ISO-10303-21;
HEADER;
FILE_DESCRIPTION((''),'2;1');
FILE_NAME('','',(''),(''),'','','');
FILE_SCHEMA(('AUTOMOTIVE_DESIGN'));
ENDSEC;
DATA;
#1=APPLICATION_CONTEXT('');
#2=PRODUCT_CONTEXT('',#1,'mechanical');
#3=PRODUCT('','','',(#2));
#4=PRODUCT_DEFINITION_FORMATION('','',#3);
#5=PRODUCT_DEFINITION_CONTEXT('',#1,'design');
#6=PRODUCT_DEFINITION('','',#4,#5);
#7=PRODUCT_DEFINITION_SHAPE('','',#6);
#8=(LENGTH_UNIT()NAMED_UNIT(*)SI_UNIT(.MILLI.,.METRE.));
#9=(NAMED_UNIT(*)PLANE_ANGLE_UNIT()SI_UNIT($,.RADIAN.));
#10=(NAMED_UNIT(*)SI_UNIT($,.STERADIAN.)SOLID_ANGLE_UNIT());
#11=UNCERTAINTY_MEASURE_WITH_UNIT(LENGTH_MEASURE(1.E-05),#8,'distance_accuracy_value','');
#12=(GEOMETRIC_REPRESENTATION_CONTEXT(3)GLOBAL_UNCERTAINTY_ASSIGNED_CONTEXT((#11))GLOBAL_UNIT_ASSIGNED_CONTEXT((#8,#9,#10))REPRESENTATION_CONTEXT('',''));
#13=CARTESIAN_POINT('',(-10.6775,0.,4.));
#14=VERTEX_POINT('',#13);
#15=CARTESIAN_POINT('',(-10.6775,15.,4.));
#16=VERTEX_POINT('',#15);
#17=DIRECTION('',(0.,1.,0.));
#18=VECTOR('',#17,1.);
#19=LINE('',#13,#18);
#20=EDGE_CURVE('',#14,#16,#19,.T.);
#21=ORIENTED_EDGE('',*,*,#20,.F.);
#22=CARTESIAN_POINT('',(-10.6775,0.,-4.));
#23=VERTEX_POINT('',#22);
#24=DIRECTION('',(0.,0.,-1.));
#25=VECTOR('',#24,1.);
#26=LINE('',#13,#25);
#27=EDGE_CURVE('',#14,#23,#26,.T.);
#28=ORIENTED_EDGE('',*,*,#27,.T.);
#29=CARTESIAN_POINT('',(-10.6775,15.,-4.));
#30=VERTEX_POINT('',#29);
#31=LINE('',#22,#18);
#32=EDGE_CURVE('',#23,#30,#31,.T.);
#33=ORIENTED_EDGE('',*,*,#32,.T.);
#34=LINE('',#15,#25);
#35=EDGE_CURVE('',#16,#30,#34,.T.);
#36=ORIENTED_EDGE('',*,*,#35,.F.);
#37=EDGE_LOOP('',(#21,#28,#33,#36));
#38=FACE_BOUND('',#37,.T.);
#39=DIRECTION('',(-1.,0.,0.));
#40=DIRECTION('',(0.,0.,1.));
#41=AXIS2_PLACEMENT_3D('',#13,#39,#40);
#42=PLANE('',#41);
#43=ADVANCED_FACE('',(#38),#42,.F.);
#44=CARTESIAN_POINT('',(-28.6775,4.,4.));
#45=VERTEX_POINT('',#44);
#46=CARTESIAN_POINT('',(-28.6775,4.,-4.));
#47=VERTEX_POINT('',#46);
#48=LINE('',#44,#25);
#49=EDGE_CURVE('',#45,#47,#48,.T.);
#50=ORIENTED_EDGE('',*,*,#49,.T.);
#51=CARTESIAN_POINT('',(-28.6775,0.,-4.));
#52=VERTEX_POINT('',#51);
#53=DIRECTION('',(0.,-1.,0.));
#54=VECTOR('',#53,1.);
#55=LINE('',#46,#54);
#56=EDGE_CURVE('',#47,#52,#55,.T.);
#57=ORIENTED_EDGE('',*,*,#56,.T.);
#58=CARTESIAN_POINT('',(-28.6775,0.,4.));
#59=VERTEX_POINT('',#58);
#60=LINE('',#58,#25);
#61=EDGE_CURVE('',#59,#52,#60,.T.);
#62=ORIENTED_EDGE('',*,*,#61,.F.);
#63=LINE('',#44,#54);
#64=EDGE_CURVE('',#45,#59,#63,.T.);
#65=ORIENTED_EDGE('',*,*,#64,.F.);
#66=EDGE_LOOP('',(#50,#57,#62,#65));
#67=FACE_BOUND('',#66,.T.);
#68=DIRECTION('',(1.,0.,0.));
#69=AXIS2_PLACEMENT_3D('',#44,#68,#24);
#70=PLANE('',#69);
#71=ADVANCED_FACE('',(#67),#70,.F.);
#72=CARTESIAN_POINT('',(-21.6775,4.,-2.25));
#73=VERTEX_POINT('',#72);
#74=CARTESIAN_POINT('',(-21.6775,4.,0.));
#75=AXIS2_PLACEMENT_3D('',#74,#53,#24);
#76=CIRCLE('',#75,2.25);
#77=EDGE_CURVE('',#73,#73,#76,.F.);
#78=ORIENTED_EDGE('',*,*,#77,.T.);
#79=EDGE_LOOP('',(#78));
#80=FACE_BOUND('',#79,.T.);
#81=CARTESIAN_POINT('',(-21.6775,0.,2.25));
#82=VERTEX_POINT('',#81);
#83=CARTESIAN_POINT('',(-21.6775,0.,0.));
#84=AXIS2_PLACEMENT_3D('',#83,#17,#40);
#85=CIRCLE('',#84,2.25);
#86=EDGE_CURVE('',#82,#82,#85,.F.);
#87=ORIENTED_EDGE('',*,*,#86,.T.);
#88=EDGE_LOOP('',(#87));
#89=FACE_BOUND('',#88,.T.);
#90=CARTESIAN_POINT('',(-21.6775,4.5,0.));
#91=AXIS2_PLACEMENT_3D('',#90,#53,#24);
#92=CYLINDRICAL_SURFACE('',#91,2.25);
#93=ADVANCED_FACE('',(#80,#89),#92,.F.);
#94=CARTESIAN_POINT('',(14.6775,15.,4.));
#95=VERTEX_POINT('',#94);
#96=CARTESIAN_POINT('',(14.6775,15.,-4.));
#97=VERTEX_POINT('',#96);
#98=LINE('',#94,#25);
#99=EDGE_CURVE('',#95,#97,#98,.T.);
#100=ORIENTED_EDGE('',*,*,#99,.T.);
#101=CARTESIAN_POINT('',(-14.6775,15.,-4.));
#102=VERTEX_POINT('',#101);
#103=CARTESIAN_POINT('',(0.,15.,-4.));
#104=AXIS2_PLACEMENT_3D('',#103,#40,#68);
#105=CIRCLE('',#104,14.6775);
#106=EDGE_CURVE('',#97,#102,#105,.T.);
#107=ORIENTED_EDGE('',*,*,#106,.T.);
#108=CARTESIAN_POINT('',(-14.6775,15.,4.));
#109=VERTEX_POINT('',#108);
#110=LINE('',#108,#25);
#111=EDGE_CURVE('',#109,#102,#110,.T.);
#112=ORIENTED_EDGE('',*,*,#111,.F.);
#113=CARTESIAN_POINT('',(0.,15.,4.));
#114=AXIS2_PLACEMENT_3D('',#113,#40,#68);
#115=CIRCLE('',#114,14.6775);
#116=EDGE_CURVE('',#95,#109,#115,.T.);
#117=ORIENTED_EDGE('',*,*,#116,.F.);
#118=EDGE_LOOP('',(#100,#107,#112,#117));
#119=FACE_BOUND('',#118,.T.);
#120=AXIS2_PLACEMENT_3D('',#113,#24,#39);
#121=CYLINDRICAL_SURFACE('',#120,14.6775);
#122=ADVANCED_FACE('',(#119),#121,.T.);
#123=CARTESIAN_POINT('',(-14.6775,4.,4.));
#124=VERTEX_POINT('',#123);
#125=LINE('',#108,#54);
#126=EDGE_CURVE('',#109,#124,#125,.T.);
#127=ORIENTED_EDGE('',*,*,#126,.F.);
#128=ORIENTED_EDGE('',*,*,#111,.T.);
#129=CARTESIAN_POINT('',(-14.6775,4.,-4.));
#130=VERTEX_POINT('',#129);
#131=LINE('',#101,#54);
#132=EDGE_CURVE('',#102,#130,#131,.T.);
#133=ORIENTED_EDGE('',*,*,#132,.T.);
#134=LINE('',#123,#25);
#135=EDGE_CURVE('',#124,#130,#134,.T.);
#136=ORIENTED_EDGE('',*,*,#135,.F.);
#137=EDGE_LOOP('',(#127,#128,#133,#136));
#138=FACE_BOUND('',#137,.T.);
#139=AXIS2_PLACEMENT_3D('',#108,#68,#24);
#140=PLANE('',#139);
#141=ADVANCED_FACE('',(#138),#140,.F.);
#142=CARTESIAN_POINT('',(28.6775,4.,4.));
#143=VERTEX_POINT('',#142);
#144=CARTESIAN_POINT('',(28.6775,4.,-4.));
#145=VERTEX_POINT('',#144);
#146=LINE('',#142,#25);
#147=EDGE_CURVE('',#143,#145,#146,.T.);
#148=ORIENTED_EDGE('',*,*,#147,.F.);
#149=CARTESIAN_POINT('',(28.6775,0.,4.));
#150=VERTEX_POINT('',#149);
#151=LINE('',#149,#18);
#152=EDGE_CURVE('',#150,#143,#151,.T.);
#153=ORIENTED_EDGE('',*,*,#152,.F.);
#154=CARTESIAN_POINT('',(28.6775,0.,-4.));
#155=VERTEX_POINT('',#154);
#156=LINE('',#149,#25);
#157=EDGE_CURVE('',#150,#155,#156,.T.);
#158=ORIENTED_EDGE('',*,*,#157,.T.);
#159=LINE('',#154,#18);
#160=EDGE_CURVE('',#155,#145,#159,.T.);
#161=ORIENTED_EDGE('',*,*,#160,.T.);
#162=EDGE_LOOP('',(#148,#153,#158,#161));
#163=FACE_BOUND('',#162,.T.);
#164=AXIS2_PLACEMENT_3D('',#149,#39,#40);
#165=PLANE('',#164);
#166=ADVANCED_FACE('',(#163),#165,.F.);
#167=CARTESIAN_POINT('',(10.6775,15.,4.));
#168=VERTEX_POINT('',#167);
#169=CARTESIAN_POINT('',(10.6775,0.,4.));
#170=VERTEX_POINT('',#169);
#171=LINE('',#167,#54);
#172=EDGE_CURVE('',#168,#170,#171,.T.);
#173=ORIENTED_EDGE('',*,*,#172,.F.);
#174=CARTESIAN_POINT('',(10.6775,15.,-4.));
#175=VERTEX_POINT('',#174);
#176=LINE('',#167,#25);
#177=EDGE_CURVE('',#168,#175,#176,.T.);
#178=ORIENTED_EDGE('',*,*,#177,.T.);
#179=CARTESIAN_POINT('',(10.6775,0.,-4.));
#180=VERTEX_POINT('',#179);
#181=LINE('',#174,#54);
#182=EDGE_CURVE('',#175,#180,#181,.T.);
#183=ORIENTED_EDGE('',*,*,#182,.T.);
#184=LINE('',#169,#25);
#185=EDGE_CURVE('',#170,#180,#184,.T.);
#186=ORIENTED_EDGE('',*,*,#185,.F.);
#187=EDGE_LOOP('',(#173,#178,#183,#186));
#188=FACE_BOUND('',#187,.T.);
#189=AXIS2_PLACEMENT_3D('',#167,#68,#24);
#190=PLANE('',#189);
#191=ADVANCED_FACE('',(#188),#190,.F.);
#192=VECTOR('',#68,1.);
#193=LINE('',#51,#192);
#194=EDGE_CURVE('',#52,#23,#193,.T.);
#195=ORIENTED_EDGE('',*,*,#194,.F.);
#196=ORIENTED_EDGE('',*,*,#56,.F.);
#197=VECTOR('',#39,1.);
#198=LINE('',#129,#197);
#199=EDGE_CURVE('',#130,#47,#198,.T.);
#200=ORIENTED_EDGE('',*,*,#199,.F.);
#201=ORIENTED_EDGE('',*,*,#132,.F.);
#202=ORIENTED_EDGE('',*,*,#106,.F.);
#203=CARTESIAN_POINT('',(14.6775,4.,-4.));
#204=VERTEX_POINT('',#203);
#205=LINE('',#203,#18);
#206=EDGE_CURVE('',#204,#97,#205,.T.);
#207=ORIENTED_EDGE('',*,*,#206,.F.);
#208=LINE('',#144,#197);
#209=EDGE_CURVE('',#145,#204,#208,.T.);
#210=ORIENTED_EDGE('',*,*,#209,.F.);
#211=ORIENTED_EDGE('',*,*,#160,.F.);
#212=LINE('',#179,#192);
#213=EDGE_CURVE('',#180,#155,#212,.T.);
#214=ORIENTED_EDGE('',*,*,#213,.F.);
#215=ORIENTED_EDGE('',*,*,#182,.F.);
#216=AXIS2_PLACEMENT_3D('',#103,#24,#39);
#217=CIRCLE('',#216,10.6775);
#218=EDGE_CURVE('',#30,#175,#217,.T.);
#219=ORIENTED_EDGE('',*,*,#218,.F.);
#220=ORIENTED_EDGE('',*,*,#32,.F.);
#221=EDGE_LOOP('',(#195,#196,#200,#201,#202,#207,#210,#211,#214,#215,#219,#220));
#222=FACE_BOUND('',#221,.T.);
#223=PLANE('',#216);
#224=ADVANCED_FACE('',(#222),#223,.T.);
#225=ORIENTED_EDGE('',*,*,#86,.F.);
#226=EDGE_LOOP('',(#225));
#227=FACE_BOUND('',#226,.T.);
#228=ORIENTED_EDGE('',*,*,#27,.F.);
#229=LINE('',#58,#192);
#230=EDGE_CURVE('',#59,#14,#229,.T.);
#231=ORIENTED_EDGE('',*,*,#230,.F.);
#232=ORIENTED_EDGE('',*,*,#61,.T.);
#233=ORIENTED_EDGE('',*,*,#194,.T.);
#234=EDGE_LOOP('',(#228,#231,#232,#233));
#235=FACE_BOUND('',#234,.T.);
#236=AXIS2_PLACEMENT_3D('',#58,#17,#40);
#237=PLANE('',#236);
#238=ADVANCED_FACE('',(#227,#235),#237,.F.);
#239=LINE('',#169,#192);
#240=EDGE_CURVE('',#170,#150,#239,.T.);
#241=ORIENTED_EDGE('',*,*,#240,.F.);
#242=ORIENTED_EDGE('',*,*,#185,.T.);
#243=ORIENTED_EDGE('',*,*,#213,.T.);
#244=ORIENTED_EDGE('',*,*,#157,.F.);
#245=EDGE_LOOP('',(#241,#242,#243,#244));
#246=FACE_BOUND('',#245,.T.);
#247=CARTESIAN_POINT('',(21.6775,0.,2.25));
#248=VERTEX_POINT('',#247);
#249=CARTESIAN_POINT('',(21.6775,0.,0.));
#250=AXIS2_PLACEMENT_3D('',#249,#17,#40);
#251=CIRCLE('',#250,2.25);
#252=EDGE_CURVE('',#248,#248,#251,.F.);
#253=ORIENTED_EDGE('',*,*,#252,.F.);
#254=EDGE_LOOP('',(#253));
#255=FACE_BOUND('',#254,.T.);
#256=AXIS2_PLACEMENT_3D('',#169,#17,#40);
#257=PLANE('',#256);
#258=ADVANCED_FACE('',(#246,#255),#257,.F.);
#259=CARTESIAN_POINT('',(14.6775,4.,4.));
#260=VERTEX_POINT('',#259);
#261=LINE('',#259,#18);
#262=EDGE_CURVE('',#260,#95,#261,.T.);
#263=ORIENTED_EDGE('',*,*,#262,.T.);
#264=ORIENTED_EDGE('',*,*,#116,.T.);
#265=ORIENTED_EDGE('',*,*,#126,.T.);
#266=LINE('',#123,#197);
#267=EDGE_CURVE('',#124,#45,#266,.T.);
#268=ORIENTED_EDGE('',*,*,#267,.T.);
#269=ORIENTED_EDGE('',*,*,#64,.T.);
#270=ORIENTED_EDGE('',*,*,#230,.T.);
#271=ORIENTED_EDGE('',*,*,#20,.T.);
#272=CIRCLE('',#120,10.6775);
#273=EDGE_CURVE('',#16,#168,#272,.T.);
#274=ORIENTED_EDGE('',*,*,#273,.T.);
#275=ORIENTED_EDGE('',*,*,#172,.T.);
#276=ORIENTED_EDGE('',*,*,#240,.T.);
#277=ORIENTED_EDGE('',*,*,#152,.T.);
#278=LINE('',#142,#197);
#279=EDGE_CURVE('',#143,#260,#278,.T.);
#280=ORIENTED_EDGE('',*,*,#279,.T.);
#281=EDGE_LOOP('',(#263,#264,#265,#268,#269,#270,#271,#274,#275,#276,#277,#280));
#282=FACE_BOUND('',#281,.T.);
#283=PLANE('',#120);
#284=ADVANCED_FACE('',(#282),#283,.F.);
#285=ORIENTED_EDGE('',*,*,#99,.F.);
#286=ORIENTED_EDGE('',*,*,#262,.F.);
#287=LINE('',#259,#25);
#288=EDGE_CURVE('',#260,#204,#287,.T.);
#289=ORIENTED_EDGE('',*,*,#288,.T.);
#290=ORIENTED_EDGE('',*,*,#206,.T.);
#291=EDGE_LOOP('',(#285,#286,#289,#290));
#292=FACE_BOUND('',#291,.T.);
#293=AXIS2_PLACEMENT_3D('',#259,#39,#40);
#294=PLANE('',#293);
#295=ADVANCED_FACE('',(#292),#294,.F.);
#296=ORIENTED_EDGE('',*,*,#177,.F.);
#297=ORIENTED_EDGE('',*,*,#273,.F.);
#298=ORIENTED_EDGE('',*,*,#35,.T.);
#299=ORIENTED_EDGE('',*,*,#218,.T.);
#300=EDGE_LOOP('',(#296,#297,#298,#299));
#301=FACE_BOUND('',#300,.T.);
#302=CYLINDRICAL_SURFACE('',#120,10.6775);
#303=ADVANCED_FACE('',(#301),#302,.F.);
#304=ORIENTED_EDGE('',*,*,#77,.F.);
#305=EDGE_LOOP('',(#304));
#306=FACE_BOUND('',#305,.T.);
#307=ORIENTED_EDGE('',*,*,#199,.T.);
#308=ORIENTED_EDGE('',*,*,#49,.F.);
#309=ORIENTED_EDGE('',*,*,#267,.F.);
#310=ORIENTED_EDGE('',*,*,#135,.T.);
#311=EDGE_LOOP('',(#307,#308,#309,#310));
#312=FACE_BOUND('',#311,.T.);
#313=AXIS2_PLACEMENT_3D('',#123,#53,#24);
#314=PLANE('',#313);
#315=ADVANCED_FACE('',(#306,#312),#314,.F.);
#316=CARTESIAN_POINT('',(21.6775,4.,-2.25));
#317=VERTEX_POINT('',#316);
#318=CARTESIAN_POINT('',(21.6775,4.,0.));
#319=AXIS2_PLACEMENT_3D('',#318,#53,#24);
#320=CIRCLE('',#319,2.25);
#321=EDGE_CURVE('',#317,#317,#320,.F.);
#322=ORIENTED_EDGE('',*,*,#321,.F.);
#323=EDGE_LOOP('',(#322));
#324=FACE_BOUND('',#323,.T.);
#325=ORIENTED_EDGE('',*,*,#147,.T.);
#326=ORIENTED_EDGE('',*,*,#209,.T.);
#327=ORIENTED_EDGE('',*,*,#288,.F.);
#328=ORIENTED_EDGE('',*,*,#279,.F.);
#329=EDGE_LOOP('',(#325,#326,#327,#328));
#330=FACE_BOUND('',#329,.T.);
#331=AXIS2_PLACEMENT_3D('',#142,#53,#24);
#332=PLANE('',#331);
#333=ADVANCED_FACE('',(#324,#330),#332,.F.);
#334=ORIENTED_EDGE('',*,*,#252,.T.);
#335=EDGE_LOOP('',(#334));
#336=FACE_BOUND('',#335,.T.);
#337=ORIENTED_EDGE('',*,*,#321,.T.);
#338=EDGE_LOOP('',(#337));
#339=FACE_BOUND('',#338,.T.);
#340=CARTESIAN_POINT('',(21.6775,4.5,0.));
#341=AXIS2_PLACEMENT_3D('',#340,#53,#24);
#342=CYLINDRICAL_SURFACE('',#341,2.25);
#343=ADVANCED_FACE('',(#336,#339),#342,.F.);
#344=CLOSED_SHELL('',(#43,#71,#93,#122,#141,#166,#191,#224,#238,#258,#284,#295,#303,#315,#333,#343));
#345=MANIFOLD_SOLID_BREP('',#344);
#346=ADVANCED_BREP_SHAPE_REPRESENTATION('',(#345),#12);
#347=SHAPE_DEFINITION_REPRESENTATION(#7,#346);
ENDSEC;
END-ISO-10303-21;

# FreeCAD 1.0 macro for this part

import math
import FreeCAD as App
import Part
import Sketcher
Q = App.Units.Quantity

doc = App.newDocument("Part")
body = doc.addObject("PartDesign::Body", "Body")

# Sketch on XY plane
sketch1 = body.newObject("Sketcher::SketchObject", "Sketch")
sketch1.AttachmentSupport = (doc.getObject("XY_Plane"), [""])
sketch1.MapMode = "FlatFace"
sketch1.addGeometry([
    Part.LineSegment(App.Vector(-28.7, 0, 0), App.Vector(-10.7, 0, 0)),  # 0
    Part.LineSegment(App.Vector(-10.7, 0, 0), App.Vector(-10.7, 15, 0)),  # 1
    Part.ArcOfCircle(Part.Circle(App.Vector(0, 15, 0), App.Vector(0, 0, 1), 10.7), math.radians(0), math.radians(180)),  # 2
    Part.LineSegment(App.Vector(10.7, 15, 0), App.Vector(10.7, 0, 0)),  # 3
    Part.LineSegment(App.Vector(10.7, 0, 0), App.Vector(28.7, 0, 0)),  # 4
    Part.LineSegment(App.Vector(28.7, 0, 0), App.Vector(28.7, 4, 0)),  # 5
    Part.LineSegment(App.Vector(28.7, 4, 0), App.Vector(14.7, 4, 0)),  # 6
    Part.LineSegment(App.Vector(14.7, 4, 0), App.Vector(14.7, 15, 0)),  # 7
    Part.ArcOfCircle(Part.Circle(App.Vector(0, 15, 0), App.Vector(0, 0, 1), 14.7), math.radians(0), math.radians(180)),  # 8
    Part.LineSegment(App.Vector(-14.7, 15, 0), App.Vector(-14.7, 4, 0)),  # 9
    Part.LineSegment(App.Vector(-14.7, 4, 0), App.Vector(-28.7, 4, 0)),  # 10
    Part.LineSegment(App.Vector(-28.7, 4, 0), App.Vector(-28.7, 0, 0)),  # 11
], False)
sketch1.addConstraint([
    Sketcher.Constraint("Coincident", 0, 2, 1, 1),
    Sketcher.Constraint("Tangent", 1, 2, 2, 2),
    Sketcher.Constraint("Tangent", 2, 1, 3, 1),
    Sketcher.Constraint("Coincident", 3, 2, 4, 1),
    Sketcher.Constraint("Coincident", 4, 2, 5, 1),
    Sketcher.Constraint("Coincident", 5, 2, 6, 1),
    Sketcher.Constraint("Coincident", 6, 2, 7, 1),
    Sketcher.Constraint("Tangent", 7, 2, 8, 1),
    Sketcher.Constraint("Tangent", 8, 2, 9, 1),
    Sketcher.Constraint("Coincident", 9, 2, 10, 1),
    Sketcher.Constraint("Coincident", 10, 2, 11, 1),
    Sketcher.Constraint("Coincident", 11, 2, 0, 1),
    Sketcher.Constraint("Horizontal", 0),
    Sketcher.Constraint("Vertical", 1),
    Sketcher.Constraint("Vertical", 3),
    Sketcher.Constraint("Horizontal", 4),
    Sketcher.Constraint("Vertical", 5),
    Sketcher.Constraint("Horizontal", 6),
    Sketcher.Constraint("Vertical", 7),
    Sketcher.Constraint("Vertical", 9),
    Sketcher.Constraint("Horizontal", 10),
    Sketcher.Constraint("Vertical", 11),
    Sketcher.Constraint("Coincident", 8, 3, 2, 3),
    Sketcher.Constraint("Symmetric", 0, 2, 3, 2, -1, 1),
    Sketcher.Constraint("Symmetric", 5, 2, 10, 2, -2),
    Sketcher.Constraint("PointOnObject", 0, 2, -1),
    Sketcher.Constraint("DistanceX", 0, 1, 0, 2, Q("18 mm")),
    Sketcher.Constraint("DistanceX", 6, 2, 6, 1, Q("14 mm")),
    Sketcher.Constraint("DistanceY", 1, 1, 1, 2, Q("15 mm")),
    Sketcher.Constraint("DistanceY", 5, 1, 5, 2, Q("4 mm")),
    Sketcher.Constraint("Radius", 2, Q("10.6775 mm")),
])
pad1 = body.newObject("PartDesign::Pad", "Pad")
pad1.Profile = sketch1
pad1.Length = 8
pad1.Midplane = True

# Sketch on XZ plane
sketch2 = body.newObject("Sketcher::SketchObject", "Sketch001")
sketch2.AttachmentSupport = (doc.getObject("XZ_Plane"), [""])
sketch2.MapMode = "FlatFace"
sketch2.AttachmentOffset = App.Placement(App.Vector(0, 0, 0.5), App.Rotation())
sketch2.addGeometry([
    Part.Circle(App.Vector(-21.7, 0, 0), App.Vector(0, 0, 1), 2.2),
    Part.Circle(App.Vector(21.7, 0, 0), App.Vector(0, 0, 1), 2.2),
], False)
sketch2.addConstraint([
    Sketcher.Constraint("Equal", 0, 1),
    Sketcher.Constraint("Symmetric", 0, 3, 1, 3, -1, 1),
    Sketcher.Constraint("PointOnObject", 0, 3, -1),
    Sketcher.Constraint("Diameter", 0, Q("4.5 mm")),
    Sketcher.Constraint("DistanceX", 0, 3, 1, 3, Q("43.355 mm")),
])
pocket1 = body.newObject("PartDesign::Pocket", "Pocket")
pocket1.Profile = sketch2
pocket1.Length = 5

doc.recompute()
